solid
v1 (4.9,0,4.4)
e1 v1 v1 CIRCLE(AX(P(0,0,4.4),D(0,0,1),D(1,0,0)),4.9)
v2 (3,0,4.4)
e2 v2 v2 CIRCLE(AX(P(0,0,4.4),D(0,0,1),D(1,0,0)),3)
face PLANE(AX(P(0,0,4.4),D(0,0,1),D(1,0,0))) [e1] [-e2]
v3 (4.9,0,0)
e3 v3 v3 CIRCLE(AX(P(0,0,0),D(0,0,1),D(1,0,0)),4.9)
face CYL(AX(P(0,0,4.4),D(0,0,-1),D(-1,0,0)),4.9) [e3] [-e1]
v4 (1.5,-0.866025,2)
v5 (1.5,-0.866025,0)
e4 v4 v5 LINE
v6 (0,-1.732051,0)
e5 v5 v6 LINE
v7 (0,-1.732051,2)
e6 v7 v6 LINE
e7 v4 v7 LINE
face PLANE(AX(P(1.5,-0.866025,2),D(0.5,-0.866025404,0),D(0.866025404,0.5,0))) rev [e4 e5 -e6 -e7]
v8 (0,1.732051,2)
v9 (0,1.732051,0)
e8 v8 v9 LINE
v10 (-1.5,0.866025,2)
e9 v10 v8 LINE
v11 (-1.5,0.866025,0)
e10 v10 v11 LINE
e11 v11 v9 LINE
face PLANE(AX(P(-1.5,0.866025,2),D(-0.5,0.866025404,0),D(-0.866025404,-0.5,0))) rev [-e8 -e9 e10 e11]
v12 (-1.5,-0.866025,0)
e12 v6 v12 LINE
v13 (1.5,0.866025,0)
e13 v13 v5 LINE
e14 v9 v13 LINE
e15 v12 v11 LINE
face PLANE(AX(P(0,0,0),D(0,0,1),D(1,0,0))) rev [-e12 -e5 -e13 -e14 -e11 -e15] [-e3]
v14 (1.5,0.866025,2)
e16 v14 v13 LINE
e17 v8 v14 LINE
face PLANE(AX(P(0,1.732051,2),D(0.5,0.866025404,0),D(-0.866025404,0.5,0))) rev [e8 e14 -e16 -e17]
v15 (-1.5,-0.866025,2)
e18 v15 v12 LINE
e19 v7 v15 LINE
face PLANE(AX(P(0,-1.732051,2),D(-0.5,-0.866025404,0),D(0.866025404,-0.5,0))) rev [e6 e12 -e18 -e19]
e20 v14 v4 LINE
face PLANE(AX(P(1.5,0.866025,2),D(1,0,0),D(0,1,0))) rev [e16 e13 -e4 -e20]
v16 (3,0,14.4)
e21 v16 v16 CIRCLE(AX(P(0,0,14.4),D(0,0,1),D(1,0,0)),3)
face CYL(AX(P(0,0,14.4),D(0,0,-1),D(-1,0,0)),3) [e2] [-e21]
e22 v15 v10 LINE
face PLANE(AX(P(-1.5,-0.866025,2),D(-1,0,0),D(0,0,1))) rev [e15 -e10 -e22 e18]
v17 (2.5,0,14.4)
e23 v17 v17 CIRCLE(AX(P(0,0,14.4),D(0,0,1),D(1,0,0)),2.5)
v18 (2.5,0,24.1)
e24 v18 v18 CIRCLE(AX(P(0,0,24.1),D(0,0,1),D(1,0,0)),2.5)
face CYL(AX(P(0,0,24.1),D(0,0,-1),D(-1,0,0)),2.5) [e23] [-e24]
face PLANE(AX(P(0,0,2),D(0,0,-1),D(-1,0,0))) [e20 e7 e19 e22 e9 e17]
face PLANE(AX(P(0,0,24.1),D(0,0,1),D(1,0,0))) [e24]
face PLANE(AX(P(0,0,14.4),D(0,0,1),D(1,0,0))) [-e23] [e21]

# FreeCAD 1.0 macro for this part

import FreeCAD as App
import Part
import Sketcher

V = App.Vector
Q = App.Units.Quantity

doc = App.newDocument("Part")
body = doc.addObject("PartDesign::Body", "Body")

# Sketch on XY plane
sketch1 = doc.addObject("Sketcher::SketchObject", "Sketch")
body.addObject(sketch1)
sketch1.AttachmentSupport = (doc.XY_Plane, [""])
sketch1.MapMode = "FlatFace"
sketch1.addGeometry(Part.Circle(V(0, 0, 0), V(0, 0, 1), 4.9), False)
sketch1.addConstraint([
    Sketcher.Constraint("Coincident", 0, 3, -1, 1),
    Sketcher.Constraint("Diameter", 0, 9.8),
])
pad1 = doc.addObject("PartDesign::Pad", "Pad")
body.addObject(pad1)
pad1.Profile = sketch1
pad1.Length = 4.4

# Sketch on XY plane
sketch2 = doc.addObject("Sketcher::SketchObject", "Sketch001")
body.addObject(sketch2)
sketch2.AttachmentSupport = (doc.XY_Plane, [""])
sketch2.MapMode = "FlatFace"
sketch2.AttachmentOffset = App.Placement(V(0, 0, 4.4), App.Rotation())
sketch2.addGeometry(Part.Circle(V(0, 0, 0), V(0, 0, 1), 3), False)
sketch2.addConstraint([
    Sketcher.Constraint("Coincident", 0, 3, -1, 1),
    Sketcher.Constraint("Diameter", 0, 6.0),
])
pad2 = doc.addObject("PartDesign::Pad", "Pad001")
body.addObject(pad2)
pad2.Profile = sketch2
pad2.Length = 10

# Sketch on XY plane
sketch3 = doc.addObject("Sketcher::SketchObject", "Sketch002")
body.addObject(sketch3)
sketch3.AttachmentSupport = (doc.XY_Plane, [""])
sketch3.MapMode = "FlatFace"
sketch3.AttachmentOffset = App.Placement(V(0, 0, 14.4), App.Rotation())
sketch3.addGeometry(Part.Circle(V(0, 0, 0), V(0, 0, 1), 2.5), False)
sketch3.addConstraint([
    Sketcher.Constraint("Coincident", 0, 3, -1, 1),
    Sketcher.Constraint("Diameter", 0, 5.0),
])
pad3 = doc.addObject("PartDesign::Pad", "Pad002")
body.addObject(pad3)
pad3.Profile = sketch3
pad3.Length = 9.7

# Sketch on XY plane
sketch4 = doc.addObject("Sketcher::SketchObject", "Sketch003")
body.addObject(sketch4)
sketch4.AttachmentSupport = (doc.XY_Plane, [""])
sketch4.MapMode = "FlatFace"
sketch4.addGeometry([
    Part.LineSegment(V(0, 1.7, 0), V(1.5, 0.9, 0)),  # 0
    Part.LineSegment(V(1.5, 0.9, 0), V(1.5, -0.9, 0)),  # 1
    Part.LineSegment(V(1.5, -0.9, 0), V(0, -1.7, 0)),  # 2
    Part.LineSegment(V(0, -1.7, 0), V(-1.5, -0.9, 0)),  # 3
    Part.LineSegment(V(-1.5, -0.9, 0), V(-1.5, 0.9, 0)),  # 4
    Part.LineSegment(V(-1.5, 0.9, 0), V(0, 1.7, 0)),  # 5
], False)
sketch4.addConstraint([
    Sketcher.Constraint("Coincident", 0, 2, 1, 1),
    Sketcher.Constraint("Coincident", 1, 2, 2, 1),
    Sketcher.Constraint("Coincident", 2, 2, 3, 1),
    Sketcher.Constraint("Coincident", 3, 2, 4, 1),
    Sketcher.Constraint("Coincident", 4, 2, 5, 1),
    Sketcher.Constraint("Coincident", 5, 2, 0, 1),
    Sketcher.Constraint("Vertical", 1),
    Sketcher.Constraint("Vertical", 4),
    Sketcher.Constraint("Symmetric", 0, 2, 3, 2, -1, 1),
    Sketcher.Constraint("Symmetric", 2, 2, 5, 2, -1, 1),
    Sketcher.Constraint("PointOnObject", 2, 2, -2),
    Sketcher.Constraint("Parallel", 2, 5),
    Sketcher.Constraint("Horizontal", 1, 2, 3, 2),
    Sketcher.Constraint("Angle", 0, Q("-30 deg")),
    Sketcher.Constraint("DistanceX", 3, 2, 1, 2, 3.0),
    Sketcher.Constraint("DistanceY", 1, 2, 1, 1, 1.732051),
])
pocket1 = doc.addObject("PartDesign::Pocket", "Pocket")
body.addObject(pocket1)
pocket1.Profile = sketch4
pocket1.Length = 2
pocket1.Reversed = True

doc.recompute()
